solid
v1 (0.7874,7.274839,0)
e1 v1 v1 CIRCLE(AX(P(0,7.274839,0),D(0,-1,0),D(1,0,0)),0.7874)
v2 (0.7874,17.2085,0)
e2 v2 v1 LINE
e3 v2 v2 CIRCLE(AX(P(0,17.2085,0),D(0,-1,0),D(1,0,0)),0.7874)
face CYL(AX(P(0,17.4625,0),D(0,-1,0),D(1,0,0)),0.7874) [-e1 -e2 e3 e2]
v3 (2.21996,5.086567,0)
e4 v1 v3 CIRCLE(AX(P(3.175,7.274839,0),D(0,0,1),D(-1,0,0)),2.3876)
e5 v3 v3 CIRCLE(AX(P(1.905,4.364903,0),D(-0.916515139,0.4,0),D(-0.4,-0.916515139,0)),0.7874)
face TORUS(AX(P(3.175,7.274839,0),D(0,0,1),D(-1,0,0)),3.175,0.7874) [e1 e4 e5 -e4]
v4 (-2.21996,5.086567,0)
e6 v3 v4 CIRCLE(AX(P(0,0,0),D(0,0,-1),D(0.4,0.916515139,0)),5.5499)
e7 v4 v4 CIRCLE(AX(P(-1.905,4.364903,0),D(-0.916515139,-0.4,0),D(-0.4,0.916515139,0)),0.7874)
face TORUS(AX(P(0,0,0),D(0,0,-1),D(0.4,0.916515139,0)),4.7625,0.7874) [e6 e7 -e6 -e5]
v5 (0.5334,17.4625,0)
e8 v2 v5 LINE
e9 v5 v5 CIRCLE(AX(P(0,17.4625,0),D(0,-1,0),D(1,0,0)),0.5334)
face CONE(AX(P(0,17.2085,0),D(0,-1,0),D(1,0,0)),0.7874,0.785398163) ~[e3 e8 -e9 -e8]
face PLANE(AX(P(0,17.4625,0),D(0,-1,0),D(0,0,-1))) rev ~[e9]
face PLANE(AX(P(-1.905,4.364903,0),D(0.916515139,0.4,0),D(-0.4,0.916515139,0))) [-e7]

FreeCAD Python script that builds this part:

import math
import FreeCAD as App
import Part
import Sketcher
from FreeCAD import Vector
Q = App.Units.Quantity


def edges_at(feature, points):
    """Names of the edges that pass closest to the given points."""
    edges = feature.Shape.Edges
    near = lambda p: min(range(len(edges)), key=lambda i: edges[i].distToShape(Part.Vertex(*p))[0])
    return sorted({f"Edge{near(p) + 1}" for p in points})

doc = App.newDocument("Part")
body = doc.addObject("PartDesign::Body", "Body")

# Sketch on XZ plane
sketch1 = doc.addObject("Sketcher::SketchObject", "Sketch")
body.addObject(sketch1)
sketch1.AttachmentSupport = (doc.XZ_Plane, [""])
sketch1.MapMode = "FlatFace"
sketch1.AttachmentOffset = App.Placement(Vector(0, 0, -0.6875 * 25.4), App.Rotation())
sketch1.addGeometry(Part.Circle(Vector(0, 0, 0), Vector(0, 0, 1), 0.8), False)
sketch1.addConstraint([
    Sketcher.Constraint("Coincident", 0, 3, -1, 1),
    Sketcher.Constraint("Diameter", 0, Q("0.062 in")),
])

# Sketch on XY plane
sketch2 = doc.addObject("Sketcher::SketchObject", "Sketch001")
body.addObject(sketch2)
sketch2.AttachmentSupport = (doc.XY_Plane, [""])
sketch2.MapMode = "FlatFace"
sketch2.addGeometry([
    Part.LineSegment(Vector(0, 17.5, 0), Vector(0, 7.3, 0)),
    Part.ArcOfCircle(Part.Circle(Vector(3.2, 7.3, 0), Vector(0, 0, 1), 3.2), math.radians(180), math.radians(246)),
    Part.ArcOfCircle(Part.Circle(Vector(0, 0, 0), Vector(0, 0, 1), 4.8), math.radians(114), math.radians(426)),
], False)
sketch2.addConstraint([
    Sketcher.Constraint("Tangent", 0, 2, 1, 1),
    Sketcher.Constraint("Tangent", 1, 2, 2, 2),
    Sketcher.Constraint("Vertical", 0),
    Sketcher.Constraint("Coincident", 2, 3, -1, 1),
    Sketcher.Constraint("PointOnObject", 0, 1, -2),
    Sketcher.Constraint("Horizontal", 1, 2, 2, 1),
    Sketcher.Constraint("Radius", 1, Q("0.125 in")),
    Sketcher.Constraint("Radius", 2, Q("0.1875 in")),
    Sketcher.Constraint("DistanceY", -1, 1, 0, 1, Q("0.6875 in")),
])
doc.recompute()

additivepipe = doc.addObject("PartDesign::AdditivePipe", "AdditivePipe")
body.addObject(additivepipe)
additivepipe.Profile = sketch1
additivepipe.Spine = (sketch2, ["Edge1", "Edge2", "Edge3"])
doc.recompute()

chamfer = doc.addObject("PartDesign::Chamfer", "Chamfer")
body.addObject(chamfer)
chamfer.Base = (additivepipe, edges_at(additivepipe, [(-0.787, 17.462, 0)]))
chamfer.Size = Q("0.01 in")

doc.recompute()
